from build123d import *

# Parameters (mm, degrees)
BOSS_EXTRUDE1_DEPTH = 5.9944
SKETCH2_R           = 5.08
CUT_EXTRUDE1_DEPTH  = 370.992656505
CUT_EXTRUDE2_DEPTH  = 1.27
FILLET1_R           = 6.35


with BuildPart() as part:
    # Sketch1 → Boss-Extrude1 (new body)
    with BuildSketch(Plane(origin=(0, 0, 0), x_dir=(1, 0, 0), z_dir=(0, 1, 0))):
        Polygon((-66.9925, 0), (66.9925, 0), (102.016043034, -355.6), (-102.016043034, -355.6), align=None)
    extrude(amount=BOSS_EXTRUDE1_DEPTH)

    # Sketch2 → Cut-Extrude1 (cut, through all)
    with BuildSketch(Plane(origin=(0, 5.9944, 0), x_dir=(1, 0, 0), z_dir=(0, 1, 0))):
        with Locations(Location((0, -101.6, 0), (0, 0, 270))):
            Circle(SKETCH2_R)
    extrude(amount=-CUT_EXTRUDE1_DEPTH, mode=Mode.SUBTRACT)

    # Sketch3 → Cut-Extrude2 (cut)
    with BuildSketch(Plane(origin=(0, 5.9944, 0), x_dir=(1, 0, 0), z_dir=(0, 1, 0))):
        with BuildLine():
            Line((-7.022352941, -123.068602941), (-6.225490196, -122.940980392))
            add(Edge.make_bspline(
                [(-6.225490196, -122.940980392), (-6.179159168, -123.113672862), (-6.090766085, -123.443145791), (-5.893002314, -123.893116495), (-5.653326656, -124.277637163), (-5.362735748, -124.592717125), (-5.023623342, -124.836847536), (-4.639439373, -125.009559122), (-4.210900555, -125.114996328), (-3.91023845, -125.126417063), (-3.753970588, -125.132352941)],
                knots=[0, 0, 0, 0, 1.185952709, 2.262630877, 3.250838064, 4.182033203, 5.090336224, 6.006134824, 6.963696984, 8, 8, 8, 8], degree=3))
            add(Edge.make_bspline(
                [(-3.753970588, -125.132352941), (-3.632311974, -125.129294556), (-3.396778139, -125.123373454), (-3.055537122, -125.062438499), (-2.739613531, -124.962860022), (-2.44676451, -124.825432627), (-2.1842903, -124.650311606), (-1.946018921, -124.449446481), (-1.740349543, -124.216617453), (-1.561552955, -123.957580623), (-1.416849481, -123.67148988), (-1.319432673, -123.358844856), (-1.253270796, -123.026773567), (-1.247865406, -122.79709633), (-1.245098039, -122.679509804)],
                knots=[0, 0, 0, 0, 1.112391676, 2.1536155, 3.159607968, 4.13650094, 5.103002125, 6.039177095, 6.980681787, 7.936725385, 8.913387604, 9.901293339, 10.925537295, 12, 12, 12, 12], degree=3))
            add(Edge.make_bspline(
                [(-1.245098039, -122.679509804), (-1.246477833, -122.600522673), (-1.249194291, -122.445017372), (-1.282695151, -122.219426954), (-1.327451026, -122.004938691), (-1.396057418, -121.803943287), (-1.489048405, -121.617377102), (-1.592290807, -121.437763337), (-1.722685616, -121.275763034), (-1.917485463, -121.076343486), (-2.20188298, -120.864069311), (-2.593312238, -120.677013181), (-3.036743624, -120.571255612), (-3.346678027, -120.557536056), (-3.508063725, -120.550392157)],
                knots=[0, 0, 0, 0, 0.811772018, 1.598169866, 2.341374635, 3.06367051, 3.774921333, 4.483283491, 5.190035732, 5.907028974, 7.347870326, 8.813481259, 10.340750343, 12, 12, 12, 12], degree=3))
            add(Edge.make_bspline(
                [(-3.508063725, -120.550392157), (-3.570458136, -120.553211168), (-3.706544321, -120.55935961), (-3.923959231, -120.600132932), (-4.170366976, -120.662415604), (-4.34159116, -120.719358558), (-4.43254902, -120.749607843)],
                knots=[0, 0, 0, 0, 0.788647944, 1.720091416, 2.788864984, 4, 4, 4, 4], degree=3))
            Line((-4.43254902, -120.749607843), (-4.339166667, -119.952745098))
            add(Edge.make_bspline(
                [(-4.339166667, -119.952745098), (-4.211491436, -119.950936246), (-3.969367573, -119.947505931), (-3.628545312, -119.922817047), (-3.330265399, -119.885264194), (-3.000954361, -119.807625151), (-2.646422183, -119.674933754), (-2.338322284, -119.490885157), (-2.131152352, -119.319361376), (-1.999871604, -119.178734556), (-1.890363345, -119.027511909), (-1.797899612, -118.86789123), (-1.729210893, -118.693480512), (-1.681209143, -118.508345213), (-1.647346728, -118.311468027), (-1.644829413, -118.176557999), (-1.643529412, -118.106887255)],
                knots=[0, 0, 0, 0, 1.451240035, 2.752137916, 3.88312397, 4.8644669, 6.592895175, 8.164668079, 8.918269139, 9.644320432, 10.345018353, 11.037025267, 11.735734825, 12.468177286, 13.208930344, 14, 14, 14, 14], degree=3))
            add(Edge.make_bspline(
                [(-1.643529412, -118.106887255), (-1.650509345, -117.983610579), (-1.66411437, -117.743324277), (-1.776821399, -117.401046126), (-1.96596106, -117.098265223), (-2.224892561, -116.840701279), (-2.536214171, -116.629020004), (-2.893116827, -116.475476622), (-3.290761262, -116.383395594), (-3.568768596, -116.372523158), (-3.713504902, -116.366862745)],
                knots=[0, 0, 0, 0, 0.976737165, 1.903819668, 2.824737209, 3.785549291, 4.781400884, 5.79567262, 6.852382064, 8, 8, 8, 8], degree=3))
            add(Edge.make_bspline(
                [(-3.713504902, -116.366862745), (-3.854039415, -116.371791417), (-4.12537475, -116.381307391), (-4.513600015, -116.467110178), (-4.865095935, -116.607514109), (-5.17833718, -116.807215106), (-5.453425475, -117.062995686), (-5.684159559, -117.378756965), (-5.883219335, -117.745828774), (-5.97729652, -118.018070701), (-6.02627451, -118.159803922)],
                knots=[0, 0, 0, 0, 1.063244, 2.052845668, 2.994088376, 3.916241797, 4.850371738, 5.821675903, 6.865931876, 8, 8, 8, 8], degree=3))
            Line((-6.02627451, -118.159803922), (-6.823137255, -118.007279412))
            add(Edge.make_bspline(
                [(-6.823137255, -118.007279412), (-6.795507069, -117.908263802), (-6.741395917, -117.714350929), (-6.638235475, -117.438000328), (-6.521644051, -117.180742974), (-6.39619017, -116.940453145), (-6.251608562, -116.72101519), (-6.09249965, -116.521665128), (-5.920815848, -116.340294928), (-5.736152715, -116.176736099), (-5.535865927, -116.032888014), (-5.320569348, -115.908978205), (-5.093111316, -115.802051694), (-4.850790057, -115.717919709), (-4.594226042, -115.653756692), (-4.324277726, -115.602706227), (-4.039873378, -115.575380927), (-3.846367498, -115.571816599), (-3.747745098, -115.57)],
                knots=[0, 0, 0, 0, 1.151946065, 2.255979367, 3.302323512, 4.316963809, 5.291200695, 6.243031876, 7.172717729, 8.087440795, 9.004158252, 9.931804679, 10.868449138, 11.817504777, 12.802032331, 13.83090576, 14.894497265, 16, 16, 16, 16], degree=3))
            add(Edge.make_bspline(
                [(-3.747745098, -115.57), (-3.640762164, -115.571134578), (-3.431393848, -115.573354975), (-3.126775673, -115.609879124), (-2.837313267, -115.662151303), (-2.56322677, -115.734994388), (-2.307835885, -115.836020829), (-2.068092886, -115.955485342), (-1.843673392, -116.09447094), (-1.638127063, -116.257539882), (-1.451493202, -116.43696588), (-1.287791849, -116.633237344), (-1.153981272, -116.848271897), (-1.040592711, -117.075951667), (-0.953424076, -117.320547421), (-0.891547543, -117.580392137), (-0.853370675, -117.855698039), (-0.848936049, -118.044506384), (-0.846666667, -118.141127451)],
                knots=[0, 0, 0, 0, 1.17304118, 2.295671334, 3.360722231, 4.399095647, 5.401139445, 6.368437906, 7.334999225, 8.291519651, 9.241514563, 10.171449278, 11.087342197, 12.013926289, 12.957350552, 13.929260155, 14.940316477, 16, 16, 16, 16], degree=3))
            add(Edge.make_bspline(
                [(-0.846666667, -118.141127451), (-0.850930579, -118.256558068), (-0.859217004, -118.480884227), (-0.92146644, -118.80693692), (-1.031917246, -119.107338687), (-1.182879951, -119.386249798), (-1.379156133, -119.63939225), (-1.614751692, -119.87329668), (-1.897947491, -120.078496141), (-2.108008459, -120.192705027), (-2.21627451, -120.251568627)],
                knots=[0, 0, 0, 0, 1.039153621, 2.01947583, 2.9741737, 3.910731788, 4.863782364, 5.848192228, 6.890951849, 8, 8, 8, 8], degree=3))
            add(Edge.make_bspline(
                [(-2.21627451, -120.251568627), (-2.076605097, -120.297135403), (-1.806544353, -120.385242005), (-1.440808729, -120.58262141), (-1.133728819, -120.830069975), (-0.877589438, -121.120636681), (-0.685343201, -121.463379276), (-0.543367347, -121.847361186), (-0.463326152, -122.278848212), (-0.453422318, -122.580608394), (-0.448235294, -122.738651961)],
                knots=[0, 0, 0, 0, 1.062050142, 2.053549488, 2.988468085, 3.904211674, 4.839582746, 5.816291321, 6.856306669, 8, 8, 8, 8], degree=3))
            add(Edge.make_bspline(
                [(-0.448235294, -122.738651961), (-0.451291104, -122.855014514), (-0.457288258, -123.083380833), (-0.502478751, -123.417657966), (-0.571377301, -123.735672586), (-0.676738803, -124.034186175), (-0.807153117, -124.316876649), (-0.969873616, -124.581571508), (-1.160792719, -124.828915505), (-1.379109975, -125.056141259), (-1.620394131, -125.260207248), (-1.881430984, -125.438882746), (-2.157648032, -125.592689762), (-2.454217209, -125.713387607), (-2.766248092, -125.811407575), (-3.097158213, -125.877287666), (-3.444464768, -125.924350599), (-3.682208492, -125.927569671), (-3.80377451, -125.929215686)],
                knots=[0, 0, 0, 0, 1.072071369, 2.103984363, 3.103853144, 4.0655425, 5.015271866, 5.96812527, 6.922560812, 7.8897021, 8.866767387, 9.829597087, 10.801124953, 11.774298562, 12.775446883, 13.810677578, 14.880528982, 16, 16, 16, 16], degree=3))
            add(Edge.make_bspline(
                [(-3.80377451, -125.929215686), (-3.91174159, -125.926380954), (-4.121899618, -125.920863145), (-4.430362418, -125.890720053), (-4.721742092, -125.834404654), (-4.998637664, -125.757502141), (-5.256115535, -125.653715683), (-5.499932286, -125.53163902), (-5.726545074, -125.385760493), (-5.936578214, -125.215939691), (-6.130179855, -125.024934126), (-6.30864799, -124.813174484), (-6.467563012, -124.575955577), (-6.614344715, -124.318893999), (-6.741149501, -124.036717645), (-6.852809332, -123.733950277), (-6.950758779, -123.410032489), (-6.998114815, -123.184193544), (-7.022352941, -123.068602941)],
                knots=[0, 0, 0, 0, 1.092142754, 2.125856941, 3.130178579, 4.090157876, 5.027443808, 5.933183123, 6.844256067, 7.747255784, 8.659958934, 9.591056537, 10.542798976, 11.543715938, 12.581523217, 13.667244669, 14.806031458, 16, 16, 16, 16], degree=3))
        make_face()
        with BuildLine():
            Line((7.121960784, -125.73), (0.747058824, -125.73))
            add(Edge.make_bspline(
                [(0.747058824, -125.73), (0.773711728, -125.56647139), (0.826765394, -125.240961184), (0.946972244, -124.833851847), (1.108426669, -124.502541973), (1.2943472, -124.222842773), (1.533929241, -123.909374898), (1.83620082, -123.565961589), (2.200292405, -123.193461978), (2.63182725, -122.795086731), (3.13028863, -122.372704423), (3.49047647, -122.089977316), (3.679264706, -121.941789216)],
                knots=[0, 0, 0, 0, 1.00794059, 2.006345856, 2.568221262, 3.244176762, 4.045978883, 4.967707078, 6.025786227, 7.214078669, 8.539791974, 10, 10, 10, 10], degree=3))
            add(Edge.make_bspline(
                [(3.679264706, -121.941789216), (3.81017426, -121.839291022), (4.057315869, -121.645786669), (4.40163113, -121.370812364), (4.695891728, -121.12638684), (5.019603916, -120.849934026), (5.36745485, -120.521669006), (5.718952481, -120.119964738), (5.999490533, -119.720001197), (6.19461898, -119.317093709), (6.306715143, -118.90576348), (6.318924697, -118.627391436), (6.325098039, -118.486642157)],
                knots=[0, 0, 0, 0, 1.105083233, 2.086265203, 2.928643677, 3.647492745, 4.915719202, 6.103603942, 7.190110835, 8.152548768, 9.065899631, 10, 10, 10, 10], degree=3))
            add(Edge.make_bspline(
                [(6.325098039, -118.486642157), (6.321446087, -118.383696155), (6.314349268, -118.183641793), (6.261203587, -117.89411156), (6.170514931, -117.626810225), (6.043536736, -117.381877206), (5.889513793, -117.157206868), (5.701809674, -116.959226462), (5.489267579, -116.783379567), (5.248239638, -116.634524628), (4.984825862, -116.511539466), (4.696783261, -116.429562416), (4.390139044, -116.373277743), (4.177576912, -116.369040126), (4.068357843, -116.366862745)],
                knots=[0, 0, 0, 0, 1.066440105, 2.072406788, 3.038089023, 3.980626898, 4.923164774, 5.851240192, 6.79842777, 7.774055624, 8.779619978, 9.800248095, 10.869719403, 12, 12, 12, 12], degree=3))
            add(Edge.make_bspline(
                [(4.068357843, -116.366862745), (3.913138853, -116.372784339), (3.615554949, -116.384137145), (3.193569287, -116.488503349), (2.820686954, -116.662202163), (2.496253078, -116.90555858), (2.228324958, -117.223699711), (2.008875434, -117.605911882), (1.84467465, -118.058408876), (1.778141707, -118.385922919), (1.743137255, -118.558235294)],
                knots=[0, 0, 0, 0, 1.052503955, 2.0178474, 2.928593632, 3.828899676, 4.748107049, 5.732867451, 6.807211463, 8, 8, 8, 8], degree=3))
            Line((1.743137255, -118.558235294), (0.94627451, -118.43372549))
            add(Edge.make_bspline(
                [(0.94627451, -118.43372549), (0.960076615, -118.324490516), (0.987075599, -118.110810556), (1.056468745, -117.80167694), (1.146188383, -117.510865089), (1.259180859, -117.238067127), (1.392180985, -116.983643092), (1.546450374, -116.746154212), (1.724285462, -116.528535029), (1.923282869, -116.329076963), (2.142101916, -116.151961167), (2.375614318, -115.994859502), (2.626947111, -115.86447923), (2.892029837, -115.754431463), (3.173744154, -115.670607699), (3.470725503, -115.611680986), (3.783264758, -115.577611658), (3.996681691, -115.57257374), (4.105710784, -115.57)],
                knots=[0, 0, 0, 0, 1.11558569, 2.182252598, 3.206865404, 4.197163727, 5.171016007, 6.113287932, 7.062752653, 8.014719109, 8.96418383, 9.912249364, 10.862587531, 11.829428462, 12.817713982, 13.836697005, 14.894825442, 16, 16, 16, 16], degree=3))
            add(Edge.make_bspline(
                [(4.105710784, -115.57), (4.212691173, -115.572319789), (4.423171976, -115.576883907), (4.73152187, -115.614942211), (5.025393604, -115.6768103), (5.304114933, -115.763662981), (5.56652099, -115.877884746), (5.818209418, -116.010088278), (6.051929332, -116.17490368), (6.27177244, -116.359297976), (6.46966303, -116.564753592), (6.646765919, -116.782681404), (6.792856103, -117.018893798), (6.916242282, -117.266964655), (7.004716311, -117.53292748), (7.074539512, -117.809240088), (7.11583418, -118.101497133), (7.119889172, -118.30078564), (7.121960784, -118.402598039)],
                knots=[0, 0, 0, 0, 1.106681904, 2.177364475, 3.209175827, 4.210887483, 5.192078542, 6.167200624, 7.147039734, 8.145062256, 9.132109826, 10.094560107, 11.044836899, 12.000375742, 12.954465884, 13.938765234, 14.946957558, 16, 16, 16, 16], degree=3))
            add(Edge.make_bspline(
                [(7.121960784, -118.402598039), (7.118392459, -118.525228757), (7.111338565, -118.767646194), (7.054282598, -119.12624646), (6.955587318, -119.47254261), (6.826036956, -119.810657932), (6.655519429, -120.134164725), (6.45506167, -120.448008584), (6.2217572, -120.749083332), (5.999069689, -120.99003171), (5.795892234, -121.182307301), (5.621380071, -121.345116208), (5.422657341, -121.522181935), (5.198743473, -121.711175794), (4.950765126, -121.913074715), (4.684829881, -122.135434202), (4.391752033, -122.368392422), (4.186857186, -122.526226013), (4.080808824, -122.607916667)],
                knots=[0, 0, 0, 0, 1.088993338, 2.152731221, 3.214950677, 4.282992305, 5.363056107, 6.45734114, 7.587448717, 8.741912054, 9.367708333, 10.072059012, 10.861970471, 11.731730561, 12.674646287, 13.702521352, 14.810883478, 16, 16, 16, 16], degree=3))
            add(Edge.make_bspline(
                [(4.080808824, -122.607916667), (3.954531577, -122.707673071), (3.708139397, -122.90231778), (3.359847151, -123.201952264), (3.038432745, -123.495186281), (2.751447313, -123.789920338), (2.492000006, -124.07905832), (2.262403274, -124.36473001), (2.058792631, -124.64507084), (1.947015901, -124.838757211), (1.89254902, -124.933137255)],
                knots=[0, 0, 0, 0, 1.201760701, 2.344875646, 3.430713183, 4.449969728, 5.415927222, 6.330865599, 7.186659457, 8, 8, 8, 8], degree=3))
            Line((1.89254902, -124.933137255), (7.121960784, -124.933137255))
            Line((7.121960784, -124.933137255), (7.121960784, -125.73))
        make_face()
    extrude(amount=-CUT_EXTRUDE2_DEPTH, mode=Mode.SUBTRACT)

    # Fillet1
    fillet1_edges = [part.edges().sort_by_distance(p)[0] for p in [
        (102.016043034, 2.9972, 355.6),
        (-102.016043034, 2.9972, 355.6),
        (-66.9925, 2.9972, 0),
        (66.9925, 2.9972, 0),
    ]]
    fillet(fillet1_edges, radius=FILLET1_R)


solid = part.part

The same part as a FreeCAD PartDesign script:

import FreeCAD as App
import Part
import Sketcher
Q = App.Units.Quantity


def edges_at(feature, points):
    """Names of the edges that pass closest to the given points."""
    edges = feature.Shape.Edges
    near = lambda p: min(range(len(edges)), key=lambda i: edges[i].distToShape(Part.Vertex(*p))[0])
    return sorted({f"Edge{near(p) + 1}" for p in points})


def add_polygon(sketch, points):
    """Adds a closed chain of lines whose ends are joined by coincident constraints."""
    first, n = sketch.GeometryCount, len(points)
    for a, b in zip(points, points[1:] + points[:1]):
        sketch.addGeometry(Part.LineSegment(App.Vector(*a, 0), App.Vector(*b, 0)), False)
    for i in range(n):
        sketch.addConstraint(Sketcher.Constraint("Coincident", first + i, 2, first + (i + 1) % n, 1))

doc = App.newDocument("Part")
body = doc.addObject("PartDesign::Body", "Body")

# Sketch on XZ plane
sketch1 = body.newObject("Sketcher::SketchObject", "Sketch")
sketch1.AttachmentSupport = (doc.getObject("XZ_Plane"), [""])
sketch1.MapMode = "FlatFace"
add_polygon(sketch1, [(67, 0), (-67, 0), (-102, 356), (102, 356)])  # lines 0-3
sketch1.addConstraint([
    Sketcher.Constraint("Horizontal", 0),
    Sketcher.Constraint("Horizontal", 2),
    Sketcher.Constraint("Symmetric", 0, 2, 3, 2, -1, 1),
    Sketcher.Constraint("Equal", 1, 3),
    Sketcher.Constraint("DistanceY", -1, 1, 1, 2, Q("14 in")),
    Sketcher.Constraint("DistanceX", 0, 2, 0, 1, Q("5.275 in")),
    Sketcher.Constraint("DistanceX", 2, 1, 2, 2, Q("204.032086 mm")),
])
pad1 = body.newObject("PartDesign::Pad", "Pad")
pad1.Profile = sketch1
pad1.Length = Q("0.236 in")
pad1.Reversed = True

# Sketch on XZ plane
sketch2 = body.newObject("Sketcher::SketchObject", "Sketch001")
sketch2.AttachmentSupport = (doc.getObject("XZ_Plane"), [""])
sketch2.MapMode = "FlatFace"
sketch2.AttachmentOffset = App.Placement(App.Vector(0, 0, -0.236 * 25.4), App.Rotation())
sketch2.addGeometry(Part.Circle(App.Vector(0, 102, 0), App.Vector(0, 0, 1), 5), False)
sketch2.addConstraint([
    Sketcher.Constraint("PointOnObject", 0, 3, -2),
    Sketcher.Constraint("Diameter", 0, Q("0.4 in")),
    Sketcher.Constraint("DistanceY", -1, 1, 0, 3, Q("4 in")),
])
pocket1 = body.newObject("PartDesign::Pocket", "Pocket")
pocket1.Profile = sketch2
pocket1.Type = "ThroughAll"
pocket1.Reversed = True

# Sketch on XZ plane
sketch3 = body.newObject("Sketcher::SketchObject", "Sketch002")
sketch3.AttachmentSupport = (doc.getObject("XZ_Plane"), [""])
sketch3.MapMode = "FlatFace"
sketch3.AttachmentOffset = App.Placement(App.Vector(0, 0, -0.236 * 25.4), App.Rotation())
sketch3.addGeometry([
    Part.LineSegment(App.Vector(-6.22549, 122.94098, 0), App.Vector(-7.022353, 123.068603, 0)),  # 0
    Part.BSplineCurve([App.Vector(-3.803775, 125.929216, 0), App.Vector(-3.911742, 125.926381, 0), App.Vector(-4.1219, 125.920863, 0), App.Vector(-4.430362, 125.89072, 0), App.Vector(-4.721742, 125.834405, 0), App.Vector(-4.998638, 125.757502, 0), App.Vector(-5.256116, 125.653716, 0), App.Vector(-5.499932, 125.531639, 0), App.Vector(-5.726545, 125.38576, 0), App.Vector(-5.936578, 125.21594, 0), App.Vector(-6.13018, 125.024934, 0), App.Vector(-6.308648, 124.813174, 0), App.Vector(-6.467563, 124.575956, 0), App.Vector(-6.614345, 124.318894, 0), App.Vector(-6.74115, 124.036718, 0), App.Vector(-6.852809, 123.73395, 0), App.Vector(-6.950759, 123.410032, 0), App.Vector(-6.998115, 123.184194, 0), App.Vector(-7.022353, 123.068603, 0)], [4, 1, 1, 1, 1, 1, 1, 1, 1, 1, 1, 1, 1, 1, 1, 1, 4], [0, 1.092142754, 2.125856941, 3.130178579, 4.090157876, 5.027443808, 5.933183123, 6.844256067, 7.747255784, 8.659958934, 9.591056537, 10.542798976, 11.543715938, 12.581523217, 13.667244669, 14.806031458, 16], False, 3, [1, 1, 1, 1, 1, 1, 1, 1, 1, 1, 1, 1, 1, 1, 1, 1, 1, 1, 1], False),  # 1
    Part.BSplineCurve([App.Vector(-0.448235, 122.738652, 0), App.Vector(-0.451291, 122.855015, 0), App.Vector(-0.457288, 123.083381, 0), App.Vector(-0.502479, 123.417658, 0), App.Vector(-0.571377, 123.735673, 0), App.Vector(-0.676739, 124.034186, 0), App.Vector(-0.807153, 124.316877, 0), App.Vector(-0.969874, 124.581572, 0), App.Vector(-1.160793, 124.828916, 0), App.Vector(-1.37911, 125.056141, 0), App.Vector(-1.620394, 125.260207, 0), App.Vector(-1.881431, 125.438883, 0), App.Vector(-2.157648, 125.59269, 0), App.Vector(-2.454217, 125.713388, 0), App.Vector(-2.766248, 125.811408, 0), App.Vector(-3.097158, 125.877288, 0), App.Vector(-3.444465, 125.924351, 0), App.Vector(-3.682208, 125.92757, 0), App.Vector(-3.803775, 125.929216, 0)], [4, 1, 1, 1, 1, 1, 1, 1, 1, 1, 1, 1, 1, 1, 1, 1, 4], [0, 1.072071369, 2.103984363, 3.103853144, 4.0655425, 5.015271866, 5.96812527, 6.922560812, 7.8897021, 8.866767387, 9.829597087, 10.801124953, 11.774298562, 12.775446883, 13.810677578, 14.880528982, 16], False, 3, [1, 1, 1, 1, 1, 1, 1, 1, 1, 1, 1, 1, 1, 1, 1, 1, 1, 1, 1], False),  # 2
    Part.BSplineCurve([App.Vector(-2.216275, 120.251569, 0), App.Vector(-2.076605, 120.297135, 0), App.Vector(-1.806544, 120.385242, 0), App.Vector(-1.440809, 120.582621, 0), App.Vector(-1.133729, 120.83007, 0), App.Vector(-0.877589, 121.120637, 0), App.Vector(-0.685343, 121.463379, 0), App.Vector(-0.543367, 121.847361, 0), App.Vector(-0.463326, 122.278848, 0), App.Vector(-0.453422, 122.580608, 0), App.Vector(-0.448235, 122.738652, 0)], [4, 1, 1, 1, 1, 1, 1, 1, 4], [0, 1.062050142, 2.053549488, 2.988468085, 3.904211674, 4.839582746, 5.816291321, 6.856306669, 8], False, 3, [1, 1, 1, 1, 1, 1, 1, 1, 1, 1, 1], False),  # 3
    Part.BSplineCurve([App.Vector(-0.846667, 118.141127, 0), App.Vector(-0.850931, 118.256558, 0), App.Vector(-0.859217, 118.480884, 0), App.Vector(-0.921466, 118.806937, 0), App.Vector(-1.031917, 119.107339, 0), App.Vector(-1.18288, 119.38625, 0), App.Vector(-1.379156, 119.639392, 0), App.Vector(-1.614752, 119.873297, 0), App.Vector(-1.897947, 120.078496, 0), App.Vector(-2.108008, 120.192705, 0), App.Vector(-2.216275, 120.251569, 0)], [4, 1, 1, 1, 1, 1, 1, 1, 4], [0, 1.039153621, 2.01947583, 2.9741737, 3.910731788, 4.863782364, 5.848192228, 6.890951849, 8], False, 3, [1, 1, 1, 1, 1, 1, 1, 1, 1, 1, 1], False),  # 4
    Part.BSplineCurve([App.Vector(-3.747745, 115.57, 0), App.Vector(-3.640762, 115.571135, 0), App.Vector(-3.431394, 115.573355, 0), App.Vector(-3.126776, 115.609879, 0), App.Vector(-2.837313, 115.662151, 0), App.Vector(-2.563227, 115.734994, 0), App.Vector(-2.307836, 115.836021, 0), App.Vector(-2.068093, 115.955485, 0), App.Vector(-1.843673, 116.094471, 0), App.Vector(-1.638127, 116.25754, 0), App.Vector(-1.451493, 116.436966, 0), App.Vector(-1.287792, 116.633237, 0), App.Vector(-1.153981, 116.848272, 0), App.Vector(-1.040593, 117.075952, 0), App.Vector(-0.953424, 117.320547, 0), App.Vector(-0.891548, 117.580392, 0), App.Vector(-0.853371, 117.855698, 0), App.Vector(-0.848936, 118.044506, 0), App.Vector(-0.846667, 118.141127, 0)], [4, 1, 1, 1, 1, 1, 1, 1, 1, 1, 1, 1, 1, 1, 1, 1, 4], [0, 1.17304118, 2.295671334, 3.360722231, 4.399095647, 5.401139445, 6.368437906, 7.334999225, 8.291519651, 9.241514563, 10.171449278, 11.087342197, 12.013926289, 12.957350552, 13.929260155, 14.940316477, 16], False, 3, [1, 1, 1, 1, 1, 1, 1, 1, 1, 1, 1, 1, 1, 1, 1, 1, 1, 1, 1], False),  # 5
    Part.BSplineCurve([App.Vector(-6.823137, 118.007279, 0), App.Vector(-6.795507, 117.908264, 0), App.Vector(-6.741396, 117.714351, 0), App.Vector(-6.638235, 117.438, 0), App.Vector(-6.521644, 117.180743, 0), App.Vector(-6.39619, 116.940453, 0), App.Vector(-6.251609, 116.721015, 0), App.Vector(-6.0925, 116.521665, 0), App.Vector(-5.920816, 116.340295, 0), App.Vector(-5.736153, 116.176736, 0), App.Vector(-5.535866, 116.032888, 0), App.Vector(-5.320569, 115.908978, 0), App.Vector(-5.093111, 115.802052, 0), App.Vector(-4.85079, 115.71792, 0), App.Vector(-4.594226, 115.653757, 0), App.Vector(-4.324278, 115.602706, 0), App.Vector(-4.039873, 115.575381, 0), App.Vector(-3.846367, 115.571817, 0), App.Vector(-3.747745, 115.57, 0)], [4, 1, 1, 1, 1, 1, 1, 1, 1, 1, 1, 1, 1, 1, 1, 1, 4], [0, 1.151946065, 2.255979367, 3.302323512, 4.316963809, 5.291200695, 6.243031876, 7.172717729, 8.087440795, 9.004158252, 9.931804679, 10.868449138, 11.817504777, 12.802032331, 13.83090576, 14.894497265, 16], False, 3, [1, 1, 1, 1, 1, 1, 1, 1, 1, 1, 1, 1, 1, 1, 1, 1, 1, 1, 1], False),  # 6
    Part.LineSegment(App.Vector(-6.823137, 118.007279, 0), App.Vector(-6.026275, 118.159804, 0)),  # 7
    Part.BSplineCurve([App.Vector(-3.713505, 116.366863, 0), App.Vector(-3.854039, 116.371791, 0), App.Vector(-4.125375, 116.381307, 0), App.Vector(-4.5136, 116.46711, 0), App.Vector(-4.865096, 116.607514, 0), App.Vector(-5.178337, 116.807215, 0), App.Vector(-5.453425, 117.062996, 0), App.Vector(-5.68416, 117.378757, 0), App.Vector(-5.883219, 117.745829, 0), App.Vector(-5.977297, 118.018071, 0), App.Vector(-6.026275, 118.159804, 0)], [4, 1, 1, 1, 1, 1, 1, 1, 4], [0, 1.063244, 2.052845668, 2.994088376, 3.916241797, 4.850371738, 5.821675903, 6.865931876, 8], False, 3, [1, 1, 1, 1, 1, 1, 1, 1, 1, 1, 1], False),  # 8
    Part.BSplineCurve([App.Vector(-1.643529, 118.106887, 0), App.Vector(-1.650509, 117.983611, 0), App.Vector(-1.664114, 117.743324, 0), App.Vector(-1.776821, 117.401046, 0), App.Vector(-1.965961, 117.098265, 0), App.Vector(-2.224893, 116.840701, 0), App.Vector(-2.536214, 116.62902, 0), App.Vector(-2.893117, 116.475477, 0), App.Vector(-3.290761, 116.383396, 0), App.Vector(-3.568769, 116.372523, 0), App.Vector(-3.713505, 116.366863, 0)], [4, 1, 1, 1, 1, 1, 1, 1, 4], [0, 0.976737165, 1.903819668, 2.824737209, 3.785549291, 4.781400884, 5.79567262, 6.852382064, 8], False, 3, [1, 1, 1, 1, 1, 1, 1, 1, 1, 1, 1], False),  # 9
    Part.BSplineCurve([App.Vector(-4.339167, 119.952745, 0), App.Vector(-4.211491, 119.950936, 0), App.Vector(-3.969368, 119.947506, 0), App.Vector(-3.628545, 119.922817, 0), App.Vector(-3.330265, 119.885264, 0), App.Vector(-3.000954, 119.807625, 0), App.Vector(-2.646422, 119.674934, 0), App.Vector(-2.338322, 119.490885, 0), App.Vector(-2.131152, 119.319361, 0), App.Vector(-1.999872, 119.178735, 0), App.Vector(-1.890363, 119.027512, 0), App.Vector(-1.7979, 118.867891, 0), App.Vector(-1.729211, 118.693481, 0), App.Vector(-1.681209, 118.508345, 0), App.Vector(-1.647347, 118.311468, 0), App.Vector(-1.644829, 118.176558, 0), App.Vector(-1.643529, 118.106887, 0)], [4, 1, 1, 1, 1, 1, 1, 1, 1, 1, 1, 1, 1, 1, 4], [0, 1.451240035, 2.752137916, 3.88312397, 4.8644669, 6.592895175, 8.164668079, 8.918269139, 9.644320432, 10.345018353, 11.037025267, 11.735734825, 12.468177286, 13.208930344, 14], False, 3, [1, 1, 1, 1, 1, 1, 1, 1, 1, 1, 1, 1, 1, 1, 1, 1, 1], False),  # 10
    Part.LineSegment(App.Vector(-4.339167, 119.952745, 0), App.Vector(-4.432549, 120.749608, 0)),  # 11
    Part.BSplineCurve([App.Vector(-3.508064, 120.550392, 0), App.Vector(-3.570458, 120.553211, 0), App.Vector(-3.706544, 120.55936, 0), App.Vector(-3.923959, 120.600133, 0), App.Vector(-4.170367, 120.662416, 0), App.Vector(-4.341591, 120.719359, 0), App.Vector(-4.432549, 120.749608, 0)], [4, 1, 1, 1, 4], [0, 0.788647944, 1.720091416, 2.788864984, 4], False, 3, [1, 1, 1, 1, 1, 1, 1], False),  # 12
    Part.BSplineCurve([App.Vector(-1.245098, 122.67951, 0), App.Vector(-1.246478, 122.600523, 0), App.Vector(-1.249194, 122.445017, 0), App.Vector(-1.282695, 122.219427, 0), App.Vector(-1.327451, 122.004939, 0), App.Vector(-1.396057, 121.803943, 0), App.Vector(-1.489048, 121.617377, 0), App.Vector(-1.592291, 121.437763, 0), App.Vector(-1.722686, 121.275763, 0), App.Vector(-1.917485, 121.076343, 0), App.Vector(-2.201883, 120.864069, 0), App.Vector(-2.593312, 120.677013, 0), App.Vector(-3.036744, 120.571256, 0), App.Vector(-3.346678, 120.557536, 0), App.Vector(-3.508064, 120.550392, 0)], [4, 1, 1, 1, 1, 1, 1, 1, 1, 1, 1, 1, 4], [0, 0.811772018, 1.598169866, 2.341374635, 3.06367051, 3.774921333, 4.483283491, 5.190035732, 5.907028974, 7.347870326, 8.813481259, 10.340750343, 12], False, 3, [1, 1, 1, 1, 1, 1, 1, 1, 1, 1, 1, 1, 1, 1, 1], False),  # 13
    Part.BSplineCurve([App.Vector(-3.753971, 125.132353, 0), App.Vector(-3.632312, 125.129295, 0), App.Vector(-3.396778, 125.123373, 0), App.Vector(-3.055537, 125.062438, 0), App.Vector(-2.739614, 124.96286, 0), App.Vector(-2.446765, 124.825433, 0), App.Vector(-2.18429, 124.650312, 0), App.Vector(-1.946019, 124.449446, 0), App.Vector(-1.74035, 124.216617, 0), App.Vector(-1.561553, 123.957581, 0), App.Vector(-1.416849, 123.67149, 0), App.Vector(-1.319433, 123.358845, 0), App.Vector(-1.253271, 123.026774, 0), App.Vector(-1.247865, 122.797096, 0), App.Vector(-1.245098, 122.67951, 0)], [4, 1, 1, 1, 1, 1, 1, 1, 1, 1, 1, 1, 4], [0, 1.112391676, 2.1536155, 3.159607968, 4.13650094, 5.103002125, 6.039177095, 6.980681787, 7.936725385, 8.913387604, 9.901293339, 10.925537295, 12], False, 3, [1, 1, 1, 1, 1, 1, 1, 1, 1, 1, 1, 1, 1, 1, 1], False),  # 14
    Part.BSplineCurve([App.Vector(-6.22549, 122.94098, 0), App.Vector(-6.179159, 123.113673, 0), App.Vector(-6.090766, 123.443146, 0), App.Vector(-5.893002, 123.893116, 0), App.Vector(-5.653327, 124.277637, 0), App.Vector(-5.362736, 124.592717, 0), App.Vector(-5.023623, 124.836848, 0), App.Vector(-4.639439, 125.009559, 0), App.Vector(-4.210901, 125.114996, 0), App.Vector(-3.910238, 125.126417, 0), App.Vector(-3.753971, 125.132353, 0)], [4, 1, 1, 1, 1, 1, 1, 1, 4], [0, 1.185952709, 2.262630877, 3.250838064, 4.182033203, 5.090336224, 6.006134824, 6.963696984, 8], False, 3, [1, 1, 1, 1, 1, 1, 1, 1, 1, 1, 1], False),  # 15
    Part.LineSegment(App.Vector(0.747059, 125.73, 0), App.Vector(7.121961, 125.73, 0)),  # 16
    Part.LineSegment(App.Vector(7.121961, 125.73, 0), App.Vector(7.121961, 124.933137, 0)),  # 17
    Part.LineSegment(App.Vector(7.121961, 124.933137, 0), App.Vector(1.892549, 124.933137, 0)),  # 18
    Part.BSplineCurve([App.Vector(4.080809, 122.607917, 0), App.Vector(3.954532, 122.707673, 0), App.Vector(3.708139, 122.902318, 0), App.Vector(3.359847, 123.201952, 0), App.Vector(3.038433, 123.495186, 0), App.Vector(2.751447, 123.78992, 0), App.Vector(2.492, 124.079058, 0), App.Vector(2.262403, 124.36473, 0), App.Vector(2.058793, 124.645071, 0), App.Vector(1.947016, 124.838757, 0), App.Vector(1.892549, 124.933137, 0)], [4, 1, 1, 1, 1, 1, 1, 1, 4], [0, 1.201760701, 2.344875646, 3.430713183, 4.449969728, 5.415927222, 6.330865599, 7.186659457, 8], False, 3, [1, 1, 1, 1, 1, 1, 1, 1, 1, 1, 1], False),  # 19
    Part.BSplineCurve([App.Vector(7.121961, 118.402598, 0), App.Vector(7.118392, 118.525229, 0), App.Vector(7.111339, 118.767646, 0), App.Vector(7.054283, 119.126246, 0), App.Vector(6.955587, 119.472543, 0), App.Vector(6.826037, 119.810658, 0), App.Vector(6.655519, 120.134165, 0), App.Vector(6.455062, 120.448009, 0), App.Vector(6.221757, 120.749083, 0), App.Vector(5.99907, 120.990032, 0), App.Vector(5.795892, 121.182307, 0), App.Vector(5.62138, 121.345116, 0), App.Vector(5.422657, 121.522182, 0), App.Vector(5.198743, 121.711176, 0), App.Vector(4.950765, 121.913075, 0), App.Vector(4.68483, 122.135434, 0), App.Vector(4.391752, 122.368392, 0), App.Vector(4.186857, 122.526226, 0), App.Vector(4.080809, 122.607917, 0)], [4, 1, 1, 1, 1, 1, 1, 1, 1, 1, 1, 1, 1, 1, 1, 1, 4], [0, 1.088993338, 2.152731221, 3.214950677, 4.282992305, 5.363056107, 6.45734114, 7.587448717, 8.741912054, 9.367708333, 10.072059012, 10.861970471, 11.731730561, 12.674646287, 13.702521352, 14.810883478, 16], False, 3, [1, 1, 1, 1, 1, 1, 1, 1, 1, 1, 1, 1, 1, 1, 1, 1, 1, 1, 1], False),  # 20
    Part.BSplineCurve([App.Vector(4.105711, 115.57, 0), App.Vector(4.212691, 115.57232, 0), App.Vector(4.423172, 115.576884, 0), App.Vector(4.731522, 115.614942, 0), App.Vector(5.025394, 115.67681, 0), App.Vector(5.304115, 115.763663, 0), App.Vector(5.566521, 115.877885, 0), App.Vector(5.818209, 116.010088, 0), App.Vector(6.051929, 116.174904, 0), App.Vector(6.271772, 116.359298, 0), App.Vector(6.469663, 116.564754, 0), App.Vector(6.646766, 116.782681, 0), App.Vector(6.792856, 117.018894, 0), App.Vector(6.916242, 117.266965, 0), App.Vector(7.004716, 117.532927, 0), App.Vector(7.07454, 117.80924, 0), App.Vector(7.115834, 118.101497, 0), App.Vector(7.119889, 118.300786, 0), App.Vector(7.121961, 118.402598, 0)], [4, 1, 1, 1, 1, 1, 1, 1, 1, 1, 1, 1, 1, 1, 1, 1, 4], [0, 1.106681904, 2.177364475, 3.209175827, 4.210887483, 5.192078542, 6.167200624, 7.147039734, 8.145062256, 9.132109826, 10.094560107, 11.044836899, 12.000375742, 12.954465884, 13.938765234, 14.946957558, 16], False, 3, [1, 1, 1, 1, 1, 1, 1, 1, 1, 1, 1, 1, 1, 1, 1, 1, 1, 1, 1], False),  # 21
    Part.BSplineCurve([App.Vector(0.946275, 118.433725, 0), App.Vector(0.960077, 118.324491, 0), App.Vector(0.987076, 118.110811, 0), App.Vector(1.056469, 117.801677, 0), App.Vector(1.146188, 117.510865, 0), App.Vector(1.259181, 117.238067, 0), App.Vector(1.392181, 116.983643, 0), App.Vector(1.54645, 116.746154, 0), App.Vector(1.724285, 116.528535, 0), App.Vector(1.923283, 116.329077, 0), App.Vector(2.142102, 116.151961, 0), App.Vector(2.375614, 115.99486, 0), App.Vector(2.626947, 115.864479, 0), App.Vector(2.89203, 115.754431, 0), App.Vector(3.173744, 115.670608, 0), App.Vector(3.470726, 115.611681, 0), App.Vector(3.783265, 115.577612, 0), App.Vector(3.996682, 115.572574, 0), App.Vector(4.105711, 115.57, 0)], [4, 1, 1, 1, 1, 1, 1, 1, 1, 1, 1, 1, 1, 1, 1, 1, 4], [0, 1.11558569, 2.182252598, 3.206865404, 4.197163727, 5.171016007, 6.113287932, 7.062752653, 8.014719109, 8.96418383, 9.912249364, 10.862587531, 11.829428462, 12.817713982, 13.836697005, 14.894825442, 16], False, 3, [1, 1, 1, 1, 1, 1, 1, 1, 1, 1, 1, 1, 1, 1, 1, 1, 1, 1, 1], False),  # 22
    Part.LineSegment(App.Vector(0.946275, 118.433725, 0), App.Vector(1.743137, 118.558235, 0)),  # 23
    Part.BSplineCurve([App.Vector(4.068358, 116.366863, 0), App.Vector(3.913139, 116.372784, 0), App.Vector(3.615555, 116.384137, 0), App.Vector(3.193569, 116.488503, 0), App.Vector(2.820687, 116.662202, 0), App.Vector(2.496253, 116.905559, 0), App.Vector(2.228325, 117.2237, 0), App.Vector(2.008875, 117.605912, 0), App.Vector(1.844675, 118.058409, 0), App.Vector(1.778142, 118.385923, 0), App.Vector(1.743137, 118.558235, 0)], [4, 1, 1, 1, 1, 1, 1, 1, 4], [0, 1.052503955, 2.0178474, 2.928593632, 3.828899676, 4.748107049, 5.732867451, 6.807211463, 8], False, 3, [1, 1, 1, 1, 1, 1, 1, 1, 1, 1, 1], False),  # 24
    Part.BSplineCurve([App.Vector(6.325098, 118.486642, 0), App.Vector(6.321446, 118.383696, 0), App.Vector(6.314349, 118.183642, 0), App.Vector(6.261204, 117.894112, 0), App.Vector(6.170515, 117.62681, 0), App.Vector(6.043537, 117.381877, 0), App.Vector(5.889514, 117.157207, 0), App.Vector(5.70181, 116.959226, 0), App.Vector(5.489268, 116.78338, 0), App.Vector(5.24824, 116.634525, 0), App.Vector(4.984826, 116.511539, 0), App.Vector(4.696783, 116.429562, 0), App.Vector(4.390139, 116.373278, 0), App.Vector(4.177577, 116.36904, 0), App.Vector(4.068358, 116.366863, 0)], [4, 1, 1, 1, 1, 1, 1, 1, 1, 1, 1, 1, 4], [0, 1.066440105, 2.072406788, 3.038089023, 3.980626898, 4.923164774, 5.851240192, 6.79842777, 7.774055624, 8.779619978, 9.800248095, 10.869719403, 12], False, 3, [1, 1, 1, 1, 1, 1, 1, 1, 1, 1, 1, 1, 1, 1, 1], False),  # 25
    Part.BSplineCurve([App.Vector(3.679265, 121.941789, 0), App.Vector(3.810174, 121.839291, 0), App.Vector(4.057316, 121.645787, 0), App.Vector(4.401631, 121.370812, 0), App.Vector(4.695892, 121.126387, 0), App.Vector(5.019604, 120.849934, 0), App.Vector(5.367455, 120.521669, 0), App.Vector(5.718952, 120.119965, 0), App.Vector(5.999491, 119.720001, 0), App.Vector(6.194619, 119.317094, 0), App.Vector(6.306715, 118.905763, 0), App.Vector(6.318925, 118.627391, 0), App.Vector(6.325098, 118.486642, 0)], [4, 1, 1, 1, 1, 1, 1, 1, 1, 1, 4], [0, 1.105083233, 2.086265203, 2.928643677, 3.647492745, 4.915719202, 6.103603942, 7.190110835, 8.152548768, 9.065899631, 10], False, 3, [1, 1, 1, 1, 1, 1, 1, 1, 1, 1, 1, 1, 1], False),  # 26
    Part.BSplineCurve([App.Vector(0.747059, 125.73, 0), App.Vector(0.773712, 125.566471, 0), App.Vector(0.826765, 125.240961, 0), App.Vector(0.946972, 124.833852, 0), App.Vector(1.108427, 124.502542, 0), App.Vector(1.294347, 124.222843, 0), App.Vector(1.533929, 123.909375, 0), App.Vector(1.836201, 123.565962, 0), App.Vector(2.200292, 123.193462, 0), App.Vector(2.631827, 122.795087, 0), App.Vector(3.130289, 122.372704, 0), App.Vector(3.490476, 122.089977, 0), App.Vector(3.679265, 121.941789, 0)], [4, 1, 1, 1, 1, 1, 1, 1, 1, 1, 4], [0, 1.00794059, 2.006345856, 2.568221262, 3.244176762, 4.045978883, 4.967707078, 6.025786227, 7.214078669, 8.539791974, 10], False, 3, [1, 1, 1, 1, 1, 1, 1, 1, 1, 1, 1, 1, 1], False),  # 27
], False)
sketch3.addConstraint([
    Sketcher.Constraint("Block", 1),
    Sketcher.Constraint("Block", 2),
    Sketcher.Constraint("Block", 3),
    Sketcher.Constraint("Block", 4),
    Sketcher.Constraint("Block", 5),
    Sketcher.Constraint("Block", 6),
    Sketcher.Constraint("Block", 8),
    Sketcher.Constraint("Block", 9),
    Sketcher.Constraint("Block", 10),
    Sketcher.Constraint("Block", 12),
    Sketcher.Constraint("Block", 13),
    Sketcher.Constraint("Block", 14),
    Sketcher.Constraint("Block", 15),
    Sketcher.Constraint("Block", 19),
    Sketcher.Constraint("Block", 20),
    Sketcher.Constraint("Block", 21),
    Sketcher.Constraint("Block", 22),
    Sketcher.Constraint("Block", 24),
    Sketcher.Constraint("Block", 25),
    Sketcher.Constraint("Block", 26),
    Sketcher.Constraint("Block", 27),
    Sketcher.Constraint("Coincident", 0, 2, 1, 2),
    Sketcher.Constraint("Coincident", 6, 1, 7, 1),
    Sketcher.Constraint("Coincident", 7, 2, 8, 2),
    Sketcher.Constraint("Coincident", 10, 1, 11, 1),
    Sketcher.Constraint("Coincident", 11, 2, 12, 2),
    Sketcher.Constraint("Coincident", 15, 1, 0, 1),
    Sketcher.Constraint("Coincident", 16, 2, 17, 1),
    Sketcher.Constraint("Coincident", 17, 2, 18, 1),
    Sketcher.Constraint("Coincident", 18, 2, 19, 2),
    Sketcher.Constraint("Coincident", 22, 1, 23, 1),
    Sketcher.Constraint("Coincident", 23, 2, 24, 2),
    Sketcher.Constraint("Coincident", 27, 1, 16, 1),
    Sketcher.Constraint("Horizontal", 16),
    Sketcher.Constraint("Vertical", 17),
    Sketcher.Constraint("Horizontal", 18),
    Sketcher.Constraint("DistanceX", 16, 1, 16, 2, Q("6.374902 mm")),
])
pocket2 = body.newObject("PartDesign::Pocket", "Pocket001")
pocket2.Profile = sketch3
pocket2.Length = Q("0.05 in")
pocket2.Reversed = True
doc.recompute()

fillet = body.newObject("PartDesign::Fillet", "Fillet")
fillet.Base = (pocket2, edges_at(pocket2, [
    (102.016, 2.997, 355.6),
    (-102.016, 2.997, 355.6),
    (-66.993, 2.997, 0),
    (66.993, 2.997, 0),
]))
fillet.Radius = Q("0.25 in")

doc.recompute()
